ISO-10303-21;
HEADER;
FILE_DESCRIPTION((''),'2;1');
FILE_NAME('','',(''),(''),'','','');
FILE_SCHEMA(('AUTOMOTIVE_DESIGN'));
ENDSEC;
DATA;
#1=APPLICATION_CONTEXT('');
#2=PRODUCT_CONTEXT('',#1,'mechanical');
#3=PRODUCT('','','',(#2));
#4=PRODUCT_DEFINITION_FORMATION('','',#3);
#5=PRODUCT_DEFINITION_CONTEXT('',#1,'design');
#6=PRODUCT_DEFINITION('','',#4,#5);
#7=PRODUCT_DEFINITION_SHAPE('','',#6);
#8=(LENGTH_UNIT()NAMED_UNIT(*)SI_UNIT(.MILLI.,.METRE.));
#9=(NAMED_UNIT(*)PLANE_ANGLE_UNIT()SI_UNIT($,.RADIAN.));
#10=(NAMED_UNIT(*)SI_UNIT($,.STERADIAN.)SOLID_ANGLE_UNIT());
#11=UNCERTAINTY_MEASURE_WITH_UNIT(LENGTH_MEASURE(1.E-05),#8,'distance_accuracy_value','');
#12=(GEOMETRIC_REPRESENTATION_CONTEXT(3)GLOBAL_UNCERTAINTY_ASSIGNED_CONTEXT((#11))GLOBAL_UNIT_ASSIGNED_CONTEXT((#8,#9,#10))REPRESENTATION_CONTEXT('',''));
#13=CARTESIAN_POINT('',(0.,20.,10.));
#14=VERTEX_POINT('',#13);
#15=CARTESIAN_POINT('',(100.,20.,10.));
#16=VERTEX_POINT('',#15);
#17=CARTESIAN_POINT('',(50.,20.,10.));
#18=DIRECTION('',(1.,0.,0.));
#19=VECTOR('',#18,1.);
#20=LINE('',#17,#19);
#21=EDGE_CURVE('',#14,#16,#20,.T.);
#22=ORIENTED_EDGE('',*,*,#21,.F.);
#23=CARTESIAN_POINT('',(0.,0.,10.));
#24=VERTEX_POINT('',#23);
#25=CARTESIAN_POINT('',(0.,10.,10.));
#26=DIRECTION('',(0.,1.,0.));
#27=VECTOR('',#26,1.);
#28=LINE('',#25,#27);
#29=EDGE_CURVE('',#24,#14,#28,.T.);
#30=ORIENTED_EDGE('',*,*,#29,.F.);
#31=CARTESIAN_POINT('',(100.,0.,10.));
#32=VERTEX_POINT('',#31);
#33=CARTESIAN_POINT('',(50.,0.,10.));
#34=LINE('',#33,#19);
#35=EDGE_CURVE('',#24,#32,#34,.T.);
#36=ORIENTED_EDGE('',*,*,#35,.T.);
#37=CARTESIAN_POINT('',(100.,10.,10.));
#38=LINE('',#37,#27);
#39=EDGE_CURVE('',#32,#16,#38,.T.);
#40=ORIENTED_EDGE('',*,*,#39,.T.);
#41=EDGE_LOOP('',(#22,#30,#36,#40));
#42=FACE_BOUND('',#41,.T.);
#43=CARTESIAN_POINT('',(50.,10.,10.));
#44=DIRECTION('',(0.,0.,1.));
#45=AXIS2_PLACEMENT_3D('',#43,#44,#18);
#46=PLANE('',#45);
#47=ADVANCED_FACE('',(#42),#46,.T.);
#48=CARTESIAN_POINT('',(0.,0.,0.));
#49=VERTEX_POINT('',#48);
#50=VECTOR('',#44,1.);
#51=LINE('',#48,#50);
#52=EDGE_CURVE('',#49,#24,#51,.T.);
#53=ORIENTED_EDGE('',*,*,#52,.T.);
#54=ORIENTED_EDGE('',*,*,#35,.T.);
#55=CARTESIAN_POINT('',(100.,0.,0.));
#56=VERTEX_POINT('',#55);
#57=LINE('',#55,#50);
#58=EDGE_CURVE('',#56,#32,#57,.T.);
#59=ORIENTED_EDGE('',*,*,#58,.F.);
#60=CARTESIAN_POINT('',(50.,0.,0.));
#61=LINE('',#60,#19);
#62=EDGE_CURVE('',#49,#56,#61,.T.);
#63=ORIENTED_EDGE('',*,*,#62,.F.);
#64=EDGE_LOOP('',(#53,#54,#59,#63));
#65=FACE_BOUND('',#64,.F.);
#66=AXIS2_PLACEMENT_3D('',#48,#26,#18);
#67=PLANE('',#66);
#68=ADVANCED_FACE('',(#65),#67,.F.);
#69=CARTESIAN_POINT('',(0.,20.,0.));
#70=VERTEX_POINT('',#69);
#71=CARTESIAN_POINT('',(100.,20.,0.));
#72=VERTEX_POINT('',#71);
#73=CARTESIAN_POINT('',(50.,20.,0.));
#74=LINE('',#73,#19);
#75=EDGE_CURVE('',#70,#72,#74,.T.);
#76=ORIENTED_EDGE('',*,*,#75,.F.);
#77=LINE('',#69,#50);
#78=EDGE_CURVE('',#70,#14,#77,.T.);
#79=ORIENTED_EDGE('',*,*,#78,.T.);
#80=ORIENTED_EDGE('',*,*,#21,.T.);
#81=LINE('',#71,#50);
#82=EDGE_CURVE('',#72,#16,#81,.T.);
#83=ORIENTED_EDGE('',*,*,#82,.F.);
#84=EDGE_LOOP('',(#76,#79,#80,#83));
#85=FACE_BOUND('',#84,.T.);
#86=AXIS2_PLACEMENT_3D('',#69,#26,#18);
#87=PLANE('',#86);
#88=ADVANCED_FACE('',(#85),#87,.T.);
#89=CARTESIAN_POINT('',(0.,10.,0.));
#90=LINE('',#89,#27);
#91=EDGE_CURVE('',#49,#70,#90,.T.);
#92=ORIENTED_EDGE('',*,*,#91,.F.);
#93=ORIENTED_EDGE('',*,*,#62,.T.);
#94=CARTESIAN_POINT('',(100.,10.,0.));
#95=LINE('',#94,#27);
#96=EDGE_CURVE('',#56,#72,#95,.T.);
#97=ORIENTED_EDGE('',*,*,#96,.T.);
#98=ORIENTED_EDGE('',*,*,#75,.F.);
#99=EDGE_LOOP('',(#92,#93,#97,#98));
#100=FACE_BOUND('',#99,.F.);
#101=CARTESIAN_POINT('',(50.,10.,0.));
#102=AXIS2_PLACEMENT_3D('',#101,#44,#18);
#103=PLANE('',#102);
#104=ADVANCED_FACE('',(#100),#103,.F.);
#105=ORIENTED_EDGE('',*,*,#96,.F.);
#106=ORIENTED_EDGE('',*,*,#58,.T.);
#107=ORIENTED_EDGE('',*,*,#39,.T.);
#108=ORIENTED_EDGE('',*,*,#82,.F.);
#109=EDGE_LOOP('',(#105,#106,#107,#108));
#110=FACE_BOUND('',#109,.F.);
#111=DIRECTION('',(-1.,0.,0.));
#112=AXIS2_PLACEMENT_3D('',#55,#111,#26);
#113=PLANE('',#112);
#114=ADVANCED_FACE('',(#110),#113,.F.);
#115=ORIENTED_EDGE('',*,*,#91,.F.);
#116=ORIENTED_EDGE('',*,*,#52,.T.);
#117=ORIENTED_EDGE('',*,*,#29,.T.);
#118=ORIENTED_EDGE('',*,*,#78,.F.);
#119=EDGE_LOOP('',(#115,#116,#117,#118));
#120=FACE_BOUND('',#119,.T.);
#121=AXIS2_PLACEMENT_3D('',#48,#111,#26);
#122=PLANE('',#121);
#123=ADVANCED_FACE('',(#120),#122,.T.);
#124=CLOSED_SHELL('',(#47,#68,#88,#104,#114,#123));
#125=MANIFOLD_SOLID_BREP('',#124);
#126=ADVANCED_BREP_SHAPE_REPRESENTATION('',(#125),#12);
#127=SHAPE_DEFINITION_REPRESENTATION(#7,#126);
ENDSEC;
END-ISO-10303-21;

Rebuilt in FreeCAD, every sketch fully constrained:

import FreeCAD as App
import Part
import Sketcher


def add_polygon(sketch, points):
    """Adds a closed chain of lines whose ends are joined by coincident constraints."""
    first, n = sketch.GeometryCount, len(points)
    for a, b in zip(points, points[1:] + points[:1]):
        sketch.addGeometry(Part.LineSegment(App.Vector(*a, 0), App.Vector(*b, 0)), False)
    for i in range(n):
        sketch.addConstraint(Sketcher.Constraint("Coincident", first + i, 2, first + (i + 1) % n, 1))

doc = App.newDocument("Part")
body = doc.addObject("PartDesign::Body", "Body")

# Sketch on XY plane
sketch1 = body.newObject("Sketcher::SketchObject", "Sketch")
sketch1.AttachmentSupport = (doc.getObject("XY_Plane"), [""])
sketch1.MapMode = "FlatFace"
add_polygon(sketch1, [(0, 20), (0, 0), (100, 0), (100, 20)])  # lines 0-3
sketch1.addConstraint(Sketcher.Constraint("Vertical", 0))
sketch1.addConstraint(Sketcher.Constraint("Horizontal", 1))
sketch1.addConstraint(Sketcher.Constraint("Vertical", 2))
sketch1.addConstraint(Sketcher.Constraint("Horizontal", 3))
sketch1.addConstraint(Sketcher.Constraint("Coincident", 0, 2, -1, 1))
sketch1.addConstraint(Sketcher.Constraint("DistanceX", 1, 1, 1, 2, 100.0))
sketch1.addConstraint(Sketcher.Constraint("DistanceY", 0, 2, 0, 1, 20.0))
pad1 = body.newObject("PartDesign::Pad", "Pad")
pad1.Profile = sketch1
pad1.Length = 10

doc.recompute()
